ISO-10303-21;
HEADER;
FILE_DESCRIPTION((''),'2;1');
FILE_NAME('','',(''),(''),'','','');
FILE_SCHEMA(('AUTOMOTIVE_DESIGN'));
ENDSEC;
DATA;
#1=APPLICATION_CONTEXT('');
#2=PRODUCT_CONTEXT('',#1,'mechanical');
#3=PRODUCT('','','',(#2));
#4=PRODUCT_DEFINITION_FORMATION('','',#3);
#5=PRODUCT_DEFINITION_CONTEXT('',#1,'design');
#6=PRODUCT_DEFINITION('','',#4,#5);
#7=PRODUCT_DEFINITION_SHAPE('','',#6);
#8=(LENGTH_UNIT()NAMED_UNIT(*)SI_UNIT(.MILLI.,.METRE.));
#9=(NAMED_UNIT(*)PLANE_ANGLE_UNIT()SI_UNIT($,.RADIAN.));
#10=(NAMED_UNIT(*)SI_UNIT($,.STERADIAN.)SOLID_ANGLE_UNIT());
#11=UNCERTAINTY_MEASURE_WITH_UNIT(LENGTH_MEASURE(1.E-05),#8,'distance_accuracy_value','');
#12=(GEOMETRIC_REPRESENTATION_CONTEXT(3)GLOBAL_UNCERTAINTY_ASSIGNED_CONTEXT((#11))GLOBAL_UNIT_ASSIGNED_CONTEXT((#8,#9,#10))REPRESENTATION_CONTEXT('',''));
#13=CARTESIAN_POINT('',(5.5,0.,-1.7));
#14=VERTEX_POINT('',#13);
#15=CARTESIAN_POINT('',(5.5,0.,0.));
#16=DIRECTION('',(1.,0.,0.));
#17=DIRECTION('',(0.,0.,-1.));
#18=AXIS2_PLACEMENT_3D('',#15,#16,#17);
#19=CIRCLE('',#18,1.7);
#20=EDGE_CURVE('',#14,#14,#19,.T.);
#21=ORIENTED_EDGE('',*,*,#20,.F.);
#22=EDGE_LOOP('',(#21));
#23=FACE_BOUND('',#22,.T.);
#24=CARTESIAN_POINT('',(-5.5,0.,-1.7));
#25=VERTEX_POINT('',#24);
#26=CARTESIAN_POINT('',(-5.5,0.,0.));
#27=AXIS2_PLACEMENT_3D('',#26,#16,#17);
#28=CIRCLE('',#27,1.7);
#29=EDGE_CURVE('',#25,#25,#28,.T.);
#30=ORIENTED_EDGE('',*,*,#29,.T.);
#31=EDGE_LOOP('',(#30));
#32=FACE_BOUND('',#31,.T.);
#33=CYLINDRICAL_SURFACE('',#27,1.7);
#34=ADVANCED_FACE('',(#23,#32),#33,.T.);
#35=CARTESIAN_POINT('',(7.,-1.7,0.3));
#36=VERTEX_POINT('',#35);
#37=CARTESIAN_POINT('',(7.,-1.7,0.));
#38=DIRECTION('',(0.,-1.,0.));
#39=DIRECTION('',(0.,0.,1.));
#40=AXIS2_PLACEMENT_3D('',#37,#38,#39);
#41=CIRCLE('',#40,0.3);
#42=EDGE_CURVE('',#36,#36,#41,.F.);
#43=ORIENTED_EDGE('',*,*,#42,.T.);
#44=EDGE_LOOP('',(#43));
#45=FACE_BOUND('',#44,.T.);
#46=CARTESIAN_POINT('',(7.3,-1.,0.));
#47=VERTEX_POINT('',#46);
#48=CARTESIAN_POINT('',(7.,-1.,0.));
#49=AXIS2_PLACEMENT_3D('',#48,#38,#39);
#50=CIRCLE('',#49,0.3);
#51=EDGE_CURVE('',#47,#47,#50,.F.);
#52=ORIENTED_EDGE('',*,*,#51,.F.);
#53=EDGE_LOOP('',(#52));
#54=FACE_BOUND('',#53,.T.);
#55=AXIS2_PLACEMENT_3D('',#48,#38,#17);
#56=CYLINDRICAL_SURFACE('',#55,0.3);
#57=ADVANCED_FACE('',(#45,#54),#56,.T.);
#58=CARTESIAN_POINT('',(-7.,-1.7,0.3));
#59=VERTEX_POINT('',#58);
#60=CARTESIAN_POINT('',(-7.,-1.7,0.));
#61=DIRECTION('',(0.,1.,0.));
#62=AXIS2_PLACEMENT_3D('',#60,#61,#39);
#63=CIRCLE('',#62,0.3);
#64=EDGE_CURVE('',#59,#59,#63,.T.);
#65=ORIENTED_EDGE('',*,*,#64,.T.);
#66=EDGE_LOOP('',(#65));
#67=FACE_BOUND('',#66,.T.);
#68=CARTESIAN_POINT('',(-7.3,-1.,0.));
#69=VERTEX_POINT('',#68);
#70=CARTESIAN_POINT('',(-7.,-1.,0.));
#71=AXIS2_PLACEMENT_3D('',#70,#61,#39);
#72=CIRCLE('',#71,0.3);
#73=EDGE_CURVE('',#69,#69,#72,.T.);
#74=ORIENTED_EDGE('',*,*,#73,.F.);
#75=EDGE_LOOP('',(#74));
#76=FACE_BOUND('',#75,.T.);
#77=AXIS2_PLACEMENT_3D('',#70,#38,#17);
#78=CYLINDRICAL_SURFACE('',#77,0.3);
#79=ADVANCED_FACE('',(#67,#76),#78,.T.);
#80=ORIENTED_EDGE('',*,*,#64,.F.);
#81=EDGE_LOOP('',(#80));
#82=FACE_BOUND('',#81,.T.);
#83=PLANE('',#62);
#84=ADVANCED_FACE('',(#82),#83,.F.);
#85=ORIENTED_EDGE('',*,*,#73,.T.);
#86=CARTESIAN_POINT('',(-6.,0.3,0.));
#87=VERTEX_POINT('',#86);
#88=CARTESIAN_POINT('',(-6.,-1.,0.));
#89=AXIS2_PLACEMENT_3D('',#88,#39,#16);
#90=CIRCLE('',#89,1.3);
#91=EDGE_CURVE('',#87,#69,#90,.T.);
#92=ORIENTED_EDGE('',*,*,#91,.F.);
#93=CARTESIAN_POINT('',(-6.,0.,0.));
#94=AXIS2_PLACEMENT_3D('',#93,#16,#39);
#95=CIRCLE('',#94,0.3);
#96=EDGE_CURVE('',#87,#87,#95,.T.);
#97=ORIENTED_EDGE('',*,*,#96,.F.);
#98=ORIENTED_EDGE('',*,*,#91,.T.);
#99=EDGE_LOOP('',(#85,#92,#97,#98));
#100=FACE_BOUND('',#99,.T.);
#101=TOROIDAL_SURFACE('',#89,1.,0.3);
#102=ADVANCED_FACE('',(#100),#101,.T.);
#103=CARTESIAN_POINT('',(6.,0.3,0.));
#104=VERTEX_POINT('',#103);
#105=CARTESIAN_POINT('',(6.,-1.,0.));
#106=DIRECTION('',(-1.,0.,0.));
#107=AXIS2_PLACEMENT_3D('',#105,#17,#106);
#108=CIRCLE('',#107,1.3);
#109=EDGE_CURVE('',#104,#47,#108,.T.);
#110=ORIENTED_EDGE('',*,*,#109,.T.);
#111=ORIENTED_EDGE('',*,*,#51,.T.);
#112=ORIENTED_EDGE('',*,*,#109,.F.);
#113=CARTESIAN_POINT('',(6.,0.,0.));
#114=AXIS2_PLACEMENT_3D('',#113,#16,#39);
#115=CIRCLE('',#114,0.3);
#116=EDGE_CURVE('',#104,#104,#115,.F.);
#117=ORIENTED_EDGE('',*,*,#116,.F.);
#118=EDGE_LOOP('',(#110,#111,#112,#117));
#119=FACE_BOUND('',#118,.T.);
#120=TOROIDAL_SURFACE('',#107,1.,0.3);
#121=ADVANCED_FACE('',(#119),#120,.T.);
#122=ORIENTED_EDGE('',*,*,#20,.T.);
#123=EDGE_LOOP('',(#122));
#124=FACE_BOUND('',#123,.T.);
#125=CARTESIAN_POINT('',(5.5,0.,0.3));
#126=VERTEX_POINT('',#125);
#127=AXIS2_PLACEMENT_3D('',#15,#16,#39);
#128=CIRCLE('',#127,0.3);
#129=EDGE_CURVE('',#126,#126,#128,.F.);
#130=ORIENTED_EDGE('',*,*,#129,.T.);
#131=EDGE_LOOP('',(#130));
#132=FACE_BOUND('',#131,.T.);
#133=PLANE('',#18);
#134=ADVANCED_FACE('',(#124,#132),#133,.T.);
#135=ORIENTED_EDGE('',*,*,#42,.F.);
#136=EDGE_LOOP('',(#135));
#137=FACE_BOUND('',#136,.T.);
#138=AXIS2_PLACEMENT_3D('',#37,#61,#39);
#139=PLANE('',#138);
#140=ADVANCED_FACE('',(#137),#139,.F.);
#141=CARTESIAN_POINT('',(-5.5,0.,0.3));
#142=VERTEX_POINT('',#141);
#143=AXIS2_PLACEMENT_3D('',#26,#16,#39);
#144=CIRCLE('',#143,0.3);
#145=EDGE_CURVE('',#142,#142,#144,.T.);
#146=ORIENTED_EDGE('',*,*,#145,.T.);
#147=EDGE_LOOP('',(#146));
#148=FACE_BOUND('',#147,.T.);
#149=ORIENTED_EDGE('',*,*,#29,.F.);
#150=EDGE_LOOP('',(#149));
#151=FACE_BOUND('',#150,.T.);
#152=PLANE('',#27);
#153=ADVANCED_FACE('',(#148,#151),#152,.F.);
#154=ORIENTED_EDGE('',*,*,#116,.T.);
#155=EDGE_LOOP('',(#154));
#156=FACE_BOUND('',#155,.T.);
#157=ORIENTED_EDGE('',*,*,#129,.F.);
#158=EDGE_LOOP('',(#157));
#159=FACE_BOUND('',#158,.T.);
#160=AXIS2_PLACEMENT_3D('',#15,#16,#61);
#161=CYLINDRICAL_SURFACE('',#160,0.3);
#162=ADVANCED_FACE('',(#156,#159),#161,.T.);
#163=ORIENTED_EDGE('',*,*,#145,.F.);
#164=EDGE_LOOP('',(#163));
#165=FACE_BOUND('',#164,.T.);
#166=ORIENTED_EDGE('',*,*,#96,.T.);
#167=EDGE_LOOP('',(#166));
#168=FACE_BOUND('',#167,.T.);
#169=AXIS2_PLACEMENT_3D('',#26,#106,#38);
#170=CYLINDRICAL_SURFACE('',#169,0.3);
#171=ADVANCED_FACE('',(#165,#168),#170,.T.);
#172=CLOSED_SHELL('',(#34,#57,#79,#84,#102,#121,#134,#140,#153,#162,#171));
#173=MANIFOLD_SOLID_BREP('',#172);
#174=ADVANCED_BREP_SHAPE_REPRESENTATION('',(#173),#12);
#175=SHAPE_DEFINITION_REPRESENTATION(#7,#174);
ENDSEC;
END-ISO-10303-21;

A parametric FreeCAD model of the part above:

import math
import FreeCAD as App
import Part
import Sketcher
Q = App.Units.Quantity

doc = App.newDocument("Part")
body = doc.addObject("PartDesign::Body", "Body")

# Sketch on YZ plane
sketch1 = body.newObject("Sketcher::SketchObject", "Sketch")
sketch1.AttachmentSupport = (doc.getObject("YZ_Plane"), [""])
sketch1.MapMode = "FlatFace"
sketch1.addGeometry(Part.Circle(App.Vector(0, 0, 0), App.Vector(0, 0, 1), 1.7), False)
sketch1.addConstraint(Sketcher.Constraint("Coincident", 0, 3, -1, 1))
sketch1.addConstraint(Sketcher.Constraint("Diameter", 0, Q("3.4 mm")))
pad1 = body.newObject("PartDesign::Pad", "Pad")
pad1.Profile = sketch1
pad1.Type = "TwoLengths"
pad1.Length = 5.5
pad1.Length2 = 5.5

# Sketch on YZ plane
sketch2 = body.newObject("Sketcher::SketchObject", "Sketch001")
sketch2.AttachmentSupport = (doc.getObject("YZ_Plane"), [""])
sketch2.MapMode = "FlatFace"
sketch2.AttachmentOffset = App.Placement(App.Vector(0, 0, -5.5), App.Rotation())
sketch2.addGeometry(Part.Circle(App.Vector(0, 0, 0), App.Vector(0, 0, 1), 0.3), False)
sketch2.addConstraint(Sketcher.Constraint("Coincident", 0, 3, -1, 1))
sketch2.addConstraint(Sketcher.Constraint("Diameter", 0, Q("0.6 mm")))

# Sketch on XY plane
sketch3 = body.newObject("Sketcher::SketchObject", "Sketch002")
sketch3.AttachmentSupport = (doc.getObject("XY_Plane"), [""])
sketch3.MapMode = "FlatFace"
sketch3.addGeometry(Part.LineSegment(App.Vector(-5.5, 0, 0), App.Vector(-6, 0, 0)), False)
sketch3.addGeometry(Part.ArcOfCircle(Part.Circle(App.Vector(-6, -1, 0), App.Vector(0, 0, 1), 1), math.radians(90), math.radians(180)), False)
sketch3.addGeometry(Part.LineSegment(App.Vector(-7, -1, 0), App.Vector(-7, -1.7, 0)), False)
sketch3.addConstraint(Sketcher.Constraint("Tangent", 0, 2, 1, 1))
sketch3.addConstraint(Sketcher.Constraint("Tangent", 1, 2, 2, 1))
sketch3.addConstraint(Sketcher.Constraint("Horizontal", 0))
sketch3.addConstraint(Sketcher.Constraint("Vertical", 2))
sketch3.addConstraint(Sketcher.Constraint("PointOnObject", 0, 1, -1))
sketch3.addConstraint(Sketcher.Constraint("Radius", 1, Q("1 mm")))
sketch3.addConstraint(Sketcher.Constraint("DistanceX", 0, 2, 0, 1, Q("0.5 mm")))
sketch3.addConstraint(Sketcher.Constraint("DistanceY", 2, 2, 2, 1, Q("0.7 mm")))
sketch3.addConstraint(Sketcher.Constraint("DistanceX", 1, 3, -1, 1, Q("6 mm")))
doc.recompute()

additivepipe = body.newObject("PartDesign::AdditivePipe", "AdditivePipe")
additivepipe.Profile = sketch2
additivepipe.Spine = (sketch3, ["Edge1", "Edge2", "Edge3"])
doc.recompute()

mirrored = body.newObject("PartDesign::Mirrored", "Mirrored")
mirrored.Originals = [additivepipe]
mirrored.MirrorPlane = (doc.getObject("YZ_Plane"), [""])
body.Tip = mirrored

doc.recompute()
